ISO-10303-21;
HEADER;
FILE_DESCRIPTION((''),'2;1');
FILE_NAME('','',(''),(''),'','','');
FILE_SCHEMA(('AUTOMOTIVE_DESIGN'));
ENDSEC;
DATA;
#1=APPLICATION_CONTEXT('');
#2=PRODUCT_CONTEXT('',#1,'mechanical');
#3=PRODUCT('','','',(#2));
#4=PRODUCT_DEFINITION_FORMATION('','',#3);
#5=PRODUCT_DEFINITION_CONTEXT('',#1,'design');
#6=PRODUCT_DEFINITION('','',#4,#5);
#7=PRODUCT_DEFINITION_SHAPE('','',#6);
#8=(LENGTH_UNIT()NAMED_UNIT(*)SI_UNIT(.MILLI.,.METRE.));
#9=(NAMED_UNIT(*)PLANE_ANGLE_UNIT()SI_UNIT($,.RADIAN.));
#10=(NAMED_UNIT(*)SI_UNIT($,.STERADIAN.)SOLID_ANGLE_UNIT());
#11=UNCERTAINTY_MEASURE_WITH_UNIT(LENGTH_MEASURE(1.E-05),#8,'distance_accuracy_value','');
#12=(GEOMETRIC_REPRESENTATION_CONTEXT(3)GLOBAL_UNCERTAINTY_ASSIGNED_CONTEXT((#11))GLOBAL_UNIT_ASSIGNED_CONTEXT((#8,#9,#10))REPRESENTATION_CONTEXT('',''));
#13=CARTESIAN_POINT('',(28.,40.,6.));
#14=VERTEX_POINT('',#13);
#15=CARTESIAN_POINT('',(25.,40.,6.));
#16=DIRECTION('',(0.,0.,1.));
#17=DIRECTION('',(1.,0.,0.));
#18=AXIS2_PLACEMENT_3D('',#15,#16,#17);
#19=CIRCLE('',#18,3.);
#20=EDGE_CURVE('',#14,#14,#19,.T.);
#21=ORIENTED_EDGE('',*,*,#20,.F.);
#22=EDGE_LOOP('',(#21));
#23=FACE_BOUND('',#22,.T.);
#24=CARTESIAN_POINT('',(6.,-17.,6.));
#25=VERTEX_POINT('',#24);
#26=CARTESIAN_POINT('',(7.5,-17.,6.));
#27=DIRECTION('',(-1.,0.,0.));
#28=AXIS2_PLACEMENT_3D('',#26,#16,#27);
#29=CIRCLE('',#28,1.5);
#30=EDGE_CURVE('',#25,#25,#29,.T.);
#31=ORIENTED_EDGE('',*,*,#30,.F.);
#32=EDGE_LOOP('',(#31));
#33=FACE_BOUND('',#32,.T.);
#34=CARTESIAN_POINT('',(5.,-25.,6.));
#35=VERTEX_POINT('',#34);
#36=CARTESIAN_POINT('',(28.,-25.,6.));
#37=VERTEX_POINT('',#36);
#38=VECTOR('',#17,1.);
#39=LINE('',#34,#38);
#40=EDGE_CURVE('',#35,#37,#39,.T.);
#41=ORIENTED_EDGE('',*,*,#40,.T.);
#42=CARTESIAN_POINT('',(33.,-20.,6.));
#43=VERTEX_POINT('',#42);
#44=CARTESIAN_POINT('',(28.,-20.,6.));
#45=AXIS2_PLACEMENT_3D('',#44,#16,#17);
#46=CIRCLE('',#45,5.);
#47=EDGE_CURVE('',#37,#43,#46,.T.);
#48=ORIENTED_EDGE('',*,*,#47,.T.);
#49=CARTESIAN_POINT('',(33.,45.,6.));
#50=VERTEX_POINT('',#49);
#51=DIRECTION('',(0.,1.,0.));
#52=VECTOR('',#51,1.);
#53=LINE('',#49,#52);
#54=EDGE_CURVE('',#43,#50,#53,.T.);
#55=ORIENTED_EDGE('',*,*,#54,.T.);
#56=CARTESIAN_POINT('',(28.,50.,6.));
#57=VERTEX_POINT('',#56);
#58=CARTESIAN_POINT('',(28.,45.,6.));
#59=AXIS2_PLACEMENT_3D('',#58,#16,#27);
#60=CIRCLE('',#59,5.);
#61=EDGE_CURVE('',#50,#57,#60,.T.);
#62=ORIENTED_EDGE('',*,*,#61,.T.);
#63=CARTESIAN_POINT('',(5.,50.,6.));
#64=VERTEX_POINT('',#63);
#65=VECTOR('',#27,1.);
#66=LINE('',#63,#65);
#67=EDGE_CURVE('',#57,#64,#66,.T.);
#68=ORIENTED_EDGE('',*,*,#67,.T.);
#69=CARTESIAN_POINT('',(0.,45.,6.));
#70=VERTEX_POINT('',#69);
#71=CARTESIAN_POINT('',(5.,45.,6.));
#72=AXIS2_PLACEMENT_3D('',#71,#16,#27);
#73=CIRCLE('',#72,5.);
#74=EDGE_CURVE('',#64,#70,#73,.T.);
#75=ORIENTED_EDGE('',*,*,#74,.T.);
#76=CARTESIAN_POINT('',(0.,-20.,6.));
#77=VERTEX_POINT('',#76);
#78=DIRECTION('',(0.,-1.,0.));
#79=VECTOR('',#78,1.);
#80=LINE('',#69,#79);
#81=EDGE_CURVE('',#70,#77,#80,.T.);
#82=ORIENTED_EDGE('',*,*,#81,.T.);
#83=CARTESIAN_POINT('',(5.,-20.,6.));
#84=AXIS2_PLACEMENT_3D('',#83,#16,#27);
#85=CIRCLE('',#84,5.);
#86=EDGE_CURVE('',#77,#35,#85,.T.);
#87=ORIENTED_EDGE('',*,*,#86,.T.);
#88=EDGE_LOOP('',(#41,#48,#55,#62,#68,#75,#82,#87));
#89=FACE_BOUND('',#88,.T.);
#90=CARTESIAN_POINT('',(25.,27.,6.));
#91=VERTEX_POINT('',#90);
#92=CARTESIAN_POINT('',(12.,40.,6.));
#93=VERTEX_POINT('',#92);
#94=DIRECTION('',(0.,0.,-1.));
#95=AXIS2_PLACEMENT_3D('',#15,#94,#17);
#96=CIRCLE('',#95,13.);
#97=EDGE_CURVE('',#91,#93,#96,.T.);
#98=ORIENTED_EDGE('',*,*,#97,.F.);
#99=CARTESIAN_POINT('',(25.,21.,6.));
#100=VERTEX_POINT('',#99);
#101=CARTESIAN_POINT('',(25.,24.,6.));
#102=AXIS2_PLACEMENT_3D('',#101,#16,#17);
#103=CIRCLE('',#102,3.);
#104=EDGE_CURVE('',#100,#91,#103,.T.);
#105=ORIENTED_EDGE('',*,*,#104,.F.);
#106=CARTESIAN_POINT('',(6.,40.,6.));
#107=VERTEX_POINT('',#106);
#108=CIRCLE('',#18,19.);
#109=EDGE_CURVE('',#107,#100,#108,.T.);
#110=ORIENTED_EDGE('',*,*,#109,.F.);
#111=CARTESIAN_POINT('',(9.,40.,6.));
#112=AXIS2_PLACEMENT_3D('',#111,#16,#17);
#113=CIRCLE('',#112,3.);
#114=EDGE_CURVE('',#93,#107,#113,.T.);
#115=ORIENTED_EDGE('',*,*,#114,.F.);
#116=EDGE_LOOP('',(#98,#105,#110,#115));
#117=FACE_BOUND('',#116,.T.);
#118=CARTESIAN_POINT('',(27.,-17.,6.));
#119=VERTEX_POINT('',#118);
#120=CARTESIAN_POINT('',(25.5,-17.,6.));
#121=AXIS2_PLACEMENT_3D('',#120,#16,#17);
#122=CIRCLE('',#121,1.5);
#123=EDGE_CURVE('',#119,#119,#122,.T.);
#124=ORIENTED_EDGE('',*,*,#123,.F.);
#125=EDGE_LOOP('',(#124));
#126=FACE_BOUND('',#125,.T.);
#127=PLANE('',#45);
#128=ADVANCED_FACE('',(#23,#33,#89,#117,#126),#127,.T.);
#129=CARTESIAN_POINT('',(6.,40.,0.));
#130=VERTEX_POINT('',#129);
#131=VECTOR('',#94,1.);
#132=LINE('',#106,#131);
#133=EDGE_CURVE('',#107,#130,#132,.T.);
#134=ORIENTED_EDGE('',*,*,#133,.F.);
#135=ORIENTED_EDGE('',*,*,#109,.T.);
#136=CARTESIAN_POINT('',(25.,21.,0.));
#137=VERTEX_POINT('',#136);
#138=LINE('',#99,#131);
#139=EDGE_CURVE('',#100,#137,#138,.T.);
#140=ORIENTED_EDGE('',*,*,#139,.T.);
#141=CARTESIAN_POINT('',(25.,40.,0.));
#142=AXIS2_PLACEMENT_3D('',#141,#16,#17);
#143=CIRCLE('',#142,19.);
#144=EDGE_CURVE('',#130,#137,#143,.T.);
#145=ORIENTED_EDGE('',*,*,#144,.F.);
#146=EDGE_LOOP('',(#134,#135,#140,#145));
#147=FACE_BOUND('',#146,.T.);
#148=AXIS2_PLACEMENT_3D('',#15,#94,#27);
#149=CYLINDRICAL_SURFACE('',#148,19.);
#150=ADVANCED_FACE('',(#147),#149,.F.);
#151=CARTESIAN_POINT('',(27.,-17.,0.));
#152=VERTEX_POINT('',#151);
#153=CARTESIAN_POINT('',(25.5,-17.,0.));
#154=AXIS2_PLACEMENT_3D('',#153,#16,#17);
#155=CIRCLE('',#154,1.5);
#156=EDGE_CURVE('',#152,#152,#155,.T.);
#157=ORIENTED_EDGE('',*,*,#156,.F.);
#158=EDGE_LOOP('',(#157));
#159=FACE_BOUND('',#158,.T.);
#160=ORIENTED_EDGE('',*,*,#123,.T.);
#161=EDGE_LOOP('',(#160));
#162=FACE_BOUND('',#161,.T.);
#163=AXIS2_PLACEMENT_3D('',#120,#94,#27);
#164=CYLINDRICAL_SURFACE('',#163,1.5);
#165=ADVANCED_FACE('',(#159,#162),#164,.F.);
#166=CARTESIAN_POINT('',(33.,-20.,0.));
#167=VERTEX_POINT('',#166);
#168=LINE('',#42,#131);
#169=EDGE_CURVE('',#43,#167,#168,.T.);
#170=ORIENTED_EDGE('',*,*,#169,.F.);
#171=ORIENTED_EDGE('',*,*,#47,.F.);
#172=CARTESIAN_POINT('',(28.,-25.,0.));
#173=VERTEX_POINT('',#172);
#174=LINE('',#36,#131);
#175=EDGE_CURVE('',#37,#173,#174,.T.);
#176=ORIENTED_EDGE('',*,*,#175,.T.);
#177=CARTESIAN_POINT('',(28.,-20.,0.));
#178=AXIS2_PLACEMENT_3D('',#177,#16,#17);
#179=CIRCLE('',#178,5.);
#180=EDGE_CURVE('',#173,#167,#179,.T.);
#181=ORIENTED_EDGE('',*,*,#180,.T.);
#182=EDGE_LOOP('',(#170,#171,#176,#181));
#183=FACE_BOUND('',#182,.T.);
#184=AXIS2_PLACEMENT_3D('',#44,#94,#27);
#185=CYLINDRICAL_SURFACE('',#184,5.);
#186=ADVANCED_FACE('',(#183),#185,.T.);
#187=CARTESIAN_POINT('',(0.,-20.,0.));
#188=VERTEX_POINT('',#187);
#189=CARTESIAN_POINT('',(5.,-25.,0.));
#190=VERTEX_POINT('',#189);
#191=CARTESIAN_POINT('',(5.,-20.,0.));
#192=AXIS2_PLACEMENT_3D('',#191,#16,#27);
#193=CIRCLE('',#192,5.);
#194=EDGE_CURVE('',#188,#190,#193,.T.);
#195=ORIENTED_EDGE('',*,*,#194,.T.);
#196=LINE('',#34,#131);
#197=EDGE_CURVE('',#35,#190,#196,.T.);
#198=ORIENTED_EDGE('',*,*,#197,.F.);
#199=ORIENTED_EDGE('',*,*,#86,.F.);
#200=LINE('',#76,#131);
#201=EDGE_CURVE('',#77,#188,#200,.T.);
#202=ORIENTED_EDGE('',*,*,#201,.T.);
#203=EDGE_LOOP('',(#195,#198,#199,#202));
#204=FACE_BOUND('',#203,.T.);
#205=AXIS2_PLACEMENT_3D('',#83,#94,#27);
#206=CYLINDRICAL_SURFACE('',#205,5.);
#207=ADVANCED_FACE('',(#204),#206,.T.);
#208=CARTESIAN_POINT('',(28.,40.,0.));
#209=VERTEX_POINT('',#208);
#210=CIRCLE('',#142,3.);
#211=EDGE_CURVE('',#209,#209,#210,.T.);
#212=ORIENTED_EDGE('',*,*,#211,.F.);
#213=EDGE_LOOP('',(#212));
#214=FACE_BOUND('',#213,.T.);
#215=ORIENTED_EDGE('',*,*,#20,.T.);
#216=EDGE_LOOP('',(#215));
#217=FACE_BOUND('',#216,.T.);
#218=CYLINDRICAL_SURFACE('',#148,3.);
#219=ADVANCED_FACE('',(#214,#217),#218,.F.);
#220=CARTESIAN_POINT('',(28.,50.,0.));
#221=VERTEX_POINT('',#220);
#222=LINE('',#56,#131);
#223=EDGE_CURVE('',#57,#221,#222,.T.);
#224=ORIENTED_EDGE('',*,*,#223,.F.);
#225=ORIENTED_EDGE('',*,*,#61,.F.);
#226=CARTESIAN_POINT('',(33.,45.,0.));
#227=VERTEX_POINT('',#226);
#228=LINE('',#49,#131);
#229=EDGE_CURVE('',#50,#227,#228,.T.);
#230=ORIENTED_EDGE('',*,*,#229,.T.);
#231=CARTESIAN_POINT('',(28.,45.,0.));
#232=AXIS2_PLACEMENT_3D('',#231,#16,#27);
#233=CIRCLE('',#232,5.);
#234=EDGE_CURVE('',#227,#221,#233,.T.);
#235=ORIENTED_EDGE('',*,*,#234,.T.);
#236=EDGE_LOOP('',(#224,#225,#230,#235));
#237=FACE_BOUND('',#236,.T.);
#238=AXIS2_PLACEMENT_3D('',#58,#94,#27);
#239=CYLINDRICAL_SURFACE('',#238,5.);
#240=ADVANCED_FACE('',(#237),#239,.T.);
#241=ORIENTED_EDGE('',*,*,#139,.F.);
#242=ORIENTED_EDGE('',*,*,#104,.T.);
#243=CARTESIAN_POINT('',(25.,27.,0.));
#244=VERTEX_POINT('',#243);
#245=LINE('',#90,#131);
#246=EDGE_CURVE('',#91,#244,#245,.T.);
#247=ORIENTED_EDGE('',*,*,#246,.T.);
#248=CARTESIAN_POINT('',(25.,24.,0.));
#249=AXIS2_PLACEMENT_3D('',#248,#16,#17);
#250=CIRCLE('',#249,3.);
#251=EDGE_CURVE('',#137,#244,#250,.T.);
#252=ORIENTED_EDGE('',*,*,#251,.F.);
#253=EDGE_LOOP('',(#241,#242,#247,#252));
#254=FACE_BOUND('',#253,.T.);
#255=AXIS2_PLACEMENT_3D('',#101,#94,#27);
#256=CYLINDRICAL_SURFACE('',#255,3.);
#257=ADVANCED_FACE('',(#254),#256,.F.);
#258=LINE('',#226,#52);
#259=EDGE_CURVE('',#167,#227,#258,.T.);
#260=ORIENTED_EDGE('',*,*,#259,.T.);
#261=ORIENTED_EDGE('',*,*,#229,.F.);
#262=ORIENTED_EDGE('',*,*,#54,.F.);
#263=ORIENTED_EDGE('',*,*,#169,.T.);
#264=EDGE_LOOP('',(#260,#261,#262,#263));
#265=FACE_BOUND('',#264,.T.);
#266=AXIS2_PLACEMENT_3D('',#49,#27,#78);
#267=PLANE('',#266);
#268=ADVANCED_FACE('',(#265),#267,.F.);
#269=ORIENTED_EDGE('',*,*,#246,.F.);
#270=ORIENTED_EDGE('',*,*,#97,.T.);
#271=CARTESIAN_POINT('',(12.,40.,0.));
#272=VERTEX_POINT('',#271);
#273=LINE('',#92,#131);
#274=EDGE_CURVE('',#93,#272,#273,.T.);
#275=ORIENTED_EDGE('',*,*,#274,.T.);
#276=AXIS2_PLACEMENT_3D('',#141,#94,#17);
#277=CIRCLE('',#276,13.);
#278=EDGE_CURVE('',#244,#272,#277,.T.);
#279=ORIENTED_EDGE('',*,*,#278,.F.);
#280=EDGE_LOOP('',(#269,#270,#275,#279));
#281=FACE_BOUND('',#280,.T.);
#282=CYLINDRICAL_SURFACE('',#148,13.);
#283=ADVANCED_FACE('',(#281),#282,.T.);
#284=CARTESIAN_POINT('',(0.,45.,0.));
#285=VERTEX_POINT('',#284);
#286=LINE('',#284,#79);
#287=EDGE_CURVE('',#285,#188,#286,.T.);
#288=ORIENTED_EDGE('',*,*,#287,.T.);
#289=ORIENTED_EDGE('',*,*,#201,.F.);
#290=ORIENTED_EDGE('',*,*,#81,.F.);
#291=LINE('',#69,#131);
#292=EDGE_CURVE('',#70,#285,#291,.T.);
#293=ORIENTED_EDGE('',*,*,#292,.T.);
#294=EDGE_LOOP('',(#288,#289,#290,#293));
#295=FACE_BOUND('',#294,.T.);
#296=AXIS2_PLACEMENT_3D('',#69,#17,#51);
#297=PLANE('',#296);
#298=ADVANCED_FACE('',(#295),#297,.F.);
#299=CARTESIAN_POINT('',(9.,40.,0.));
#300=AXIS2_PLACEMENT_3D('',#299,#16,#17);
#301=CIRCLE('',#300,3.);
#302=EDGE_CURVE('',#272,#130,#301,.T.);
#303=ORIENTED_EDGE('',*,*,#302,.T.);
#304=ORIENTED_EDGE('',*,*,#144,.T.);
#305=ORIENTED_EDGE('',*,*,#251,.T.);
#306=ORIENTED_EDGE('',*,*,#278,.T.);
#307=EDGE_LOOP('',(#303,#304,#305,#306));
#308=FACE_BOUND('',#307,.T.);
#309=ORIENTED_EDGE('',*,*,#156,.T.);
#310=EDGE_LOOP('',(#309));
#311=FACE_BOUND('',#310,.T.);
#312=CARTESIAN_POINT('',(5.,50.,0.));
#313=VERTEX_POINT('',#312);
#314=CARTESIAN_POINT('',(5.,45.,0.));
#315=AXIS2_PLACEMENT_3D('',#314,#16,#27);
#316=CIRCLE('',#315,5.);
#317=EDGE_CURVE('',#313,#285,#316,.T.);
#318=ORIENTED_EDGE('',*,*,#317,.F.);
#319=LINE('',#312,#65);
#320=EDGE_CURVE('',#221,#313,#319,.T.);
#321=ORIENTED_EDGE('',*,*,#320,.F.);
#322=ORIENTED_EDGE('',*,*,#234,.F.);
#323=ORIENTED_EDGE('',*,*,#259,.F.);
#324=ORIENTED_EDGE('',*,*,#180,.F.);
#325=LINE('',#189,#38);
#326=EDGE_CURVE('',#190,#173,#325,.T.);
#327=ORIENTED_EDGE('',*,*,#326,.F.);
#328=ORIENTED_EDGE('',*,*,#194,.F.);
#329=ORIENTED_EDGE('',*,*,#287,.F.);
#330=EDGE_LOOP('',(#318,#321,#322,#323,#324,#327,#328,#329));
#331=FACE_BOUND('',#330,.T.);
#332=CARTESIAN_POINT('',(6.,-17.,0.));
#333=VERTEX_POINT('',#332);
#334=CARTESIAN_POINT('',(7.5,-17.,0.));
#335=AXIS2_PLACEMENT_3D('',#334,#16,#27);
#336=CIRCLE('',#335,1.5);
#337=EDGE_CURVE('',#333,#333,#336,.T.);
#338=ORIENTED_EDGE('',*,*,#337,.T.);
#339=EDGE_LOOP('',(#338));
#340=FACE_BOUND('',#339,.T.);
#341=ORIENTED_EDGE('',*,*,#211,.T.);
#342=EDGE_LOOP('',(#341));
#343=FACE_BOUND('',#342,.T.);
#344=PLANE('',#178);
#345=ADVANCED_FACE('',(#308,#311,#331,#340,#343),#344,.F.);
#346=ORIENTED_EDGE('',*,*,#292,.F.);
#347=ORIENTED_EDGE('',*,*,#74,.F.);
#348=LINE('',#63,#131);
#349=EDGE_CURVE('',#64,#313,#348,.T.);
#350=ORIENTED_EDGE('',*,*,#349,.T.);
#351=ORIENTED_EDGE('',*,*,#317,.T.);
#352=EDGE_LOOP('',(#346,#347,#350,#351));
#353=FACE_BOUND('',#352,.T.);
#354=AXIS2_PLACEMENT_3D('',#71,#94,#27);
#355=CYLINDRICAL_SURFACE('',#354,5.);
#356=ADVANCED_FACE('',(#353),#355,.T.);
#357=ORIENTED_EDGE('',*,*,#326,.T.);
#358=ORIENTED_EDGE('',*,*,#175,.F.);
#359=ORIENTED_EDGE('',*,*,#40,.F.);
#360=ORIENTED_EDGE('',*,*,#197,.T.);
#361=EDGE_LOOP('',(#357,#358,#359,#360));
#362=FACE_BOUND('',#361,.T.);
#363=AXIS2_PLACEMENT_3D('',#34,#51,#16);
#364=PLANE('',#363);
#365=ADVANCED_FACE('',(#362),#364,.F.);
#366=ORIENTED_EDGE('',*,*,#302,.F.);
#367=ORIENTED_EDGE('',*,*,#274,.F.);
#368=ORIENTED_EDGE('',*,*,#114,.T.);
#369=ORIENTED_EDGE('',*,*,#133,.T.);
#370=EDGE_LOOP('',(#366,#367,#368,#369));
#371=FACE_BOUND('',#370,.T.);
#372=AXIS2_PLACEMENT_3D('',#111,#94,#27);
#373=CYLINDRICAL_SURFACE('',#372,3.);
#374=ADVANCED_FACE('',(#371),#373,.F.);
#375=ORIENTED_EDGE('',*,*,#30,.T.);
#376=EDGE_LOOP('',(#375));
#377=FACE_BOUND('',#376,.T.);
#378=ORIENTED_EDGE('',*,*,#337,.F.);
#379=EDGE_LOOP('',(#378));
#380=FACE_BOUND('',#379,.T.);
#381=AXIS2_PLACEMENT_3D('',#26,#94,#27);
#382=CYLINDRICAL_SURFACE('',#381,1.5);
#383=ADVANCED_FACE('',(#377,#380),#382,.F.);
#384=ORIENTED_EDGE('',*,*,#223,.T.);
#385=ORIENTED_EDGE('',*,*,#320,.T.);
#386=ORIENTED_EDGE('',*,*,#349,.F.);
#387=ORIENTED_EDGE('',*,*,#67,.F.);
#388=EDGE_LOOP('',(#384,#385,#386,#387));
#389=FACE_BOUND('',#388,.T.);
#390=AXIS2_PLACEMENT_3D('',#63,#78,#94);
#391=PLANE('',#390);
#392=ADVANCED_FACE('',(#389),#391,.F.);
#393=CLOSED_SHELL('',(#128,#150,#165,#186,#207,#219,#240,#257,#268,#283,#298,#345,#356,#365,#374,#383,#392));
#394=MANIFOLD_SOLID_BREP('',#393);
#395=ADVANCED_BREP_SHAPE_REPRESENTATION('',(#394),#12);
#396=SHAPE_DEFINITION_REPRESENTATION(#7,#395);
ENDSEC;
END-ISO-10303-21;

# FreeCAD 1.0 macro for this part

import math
import FreeCAD as App
import Part
import Sketcher

V = App.Vector

doc = App.newDocument("Part")
body = doc.addObject("PartDesign::Body", "Body")

sketch1 = body.newObject("Sketcher::SketchObject", "Sketch")
sketch1.AttachmentSupport = (doc.getObject("XY_Plane"), [""])
sketch1.MapMode = "FlatFace"
sketch1.addGeometry([
    Part.LineSegment(V(28, 50, 0), V(5, 50, 0)),
    Part.ArcOfCircle(Part.Circle(V(5, 45, 0), V(0, 0, 1), 5), math.radians(90), math.radians(180)),
    Part.LineSegment(V(0, 45, 0), V(0, -20, 0)),
    Part.ArcOfCircle(Part.Circle(V(5, -20, 0), V(0, 0, 1), 5), math.radians(180), math.radians(270)),
    Part.LineSegment(V(5, -25, 0), V(28, -25, 0)),
    Part.ArcOfCircle(Part.Circle(V(28, -20, 0), V(0, 0, 1), 5), math.radians(-90), math.radians(0)),
    Part.LineSegment(V(33, -20, 0), V(33, 45, 0)),
    Part.ArcOfCircle(Part.Circle(V(28, 45, 0), V(0, 0, 1), 5), math.radians(0), math.radians(90)),
    Part.Circle(V(25.5, -17, 0), V(0, 0, 1), 1.5),
    Part.Circle(V(7.5, -17, 0), V(0, 0, 1), 1.5),
    Part.Circle(V(25, 40, 0), V(0, 0, 1), 3),
    Part.ArcOfCircle(Part.Circle(V(9, 40, 0), V(0, 0, 1), 3), math.radians(0), math.radians(180)),
    Part.ArcOfCircle(Part.Circle(V(25, 40, 0), V(0, 0, 1), 13), math.radians(-180), math.radians(-90)),
    Part.ArcOfCircle(Part.Circle(V(25, 24, 0), V(0, 0, 1), 3), math.radians(-90), math.radians(90)),
    Part.ArcOfCircle(Part.Circle(V(25, 40, 0), V(0, 0, 1), 19), math.radians(180), math.radians(270)),
], False)
sketch1.addConstraint([
    Sketcher.Constraint("Tangent", 0, 2, 1, 1),
    Sketcher.Constraint("Tangent", 1, 2, 2, 1),
    Sketcher.Constraint("Tangent", 2, 2, 3, 1),
    Sketcher.Constraint("Tangent", 3, 2, 4, 1),
    Sketcher.Constraint("Tangent", 4, 2, 5, 1),
    Sketcher.Constraint("Tangent", 5, 2, 6, 1),
    Sketcher.Constraint("Tangent", 6, 2, 7, 1),
    Sketcher.Constraint("Tangent", 7, 2, 0, 1),
    Sketcher.Constraint("Tangent", 11, 1, 12, 1),
    Sketcher.Constraint("Tangent", 12, 2, 13, 2),
    Sketcher.Constraint("Tangent", 13, 1, 14, 2),
    Sketcher.Constraint("Tangent", 14, 1, 11, 2),
    Sketcher.Constraint("Horizontal", 0),
    Sketcher.Constraint("Vertical", 2),
    Sketcher.Constraint("Horizontal", 4),
    Sketcher.Constraint("Vertical", 6),
    Sketcher.Constraint("Coincident", 12, 3, 10, 3),
    Sketcher.Constraint("Coincident", 14, 3, 10, 3),
    Sketcher.Constraint("Equal", 1, 3),
    Sketcher.Constraint("Equal", 3, 5),
    Sketcher.Constraint("Equal", 5, 7),
    Sketcher.Constraint("Equal", 8, 9),
    Sketcher.Constraint("Equal", 10, 11),
    Sketcher.Constraint("PointOnObject", 1, 2, -2),
    Sketcher.Constraint("Horizontal", 8, 3, 9, 3),
    Sketcher.Constraint("Horizontal", 10, 3, 11, 3),
    Sketcher.Constraint("Vertical", 12, 3, 13, 3),
    Sketcher.Constraint("Diameter", 8, 3.0),
    Sketcher.Constraint("Diameter", 10, 6.0),
    Sketcher.Constraint("Radius", 1, 5.0),
    Sketcher.Constraint("Radius", 12, 13.0),
    Sketcher.Constraint("DistanceX", 0, 2, 0, 1, 23.0),
    Sketcher.Constraint("DistanceY", 2, 2, 2, 1, 65.0),
    Sketcher.Constraint("DistanceY", -1, 1, 1, 3, 45.0),
    Sketcher.Constraint("DistanceY", 8, 3, -1, 1, 17.0),
    Sketcher.Constraint("DistanceX", -1, 1, 10, 3, 25.0),
    Sketcher.Constraint("DistanceY", -1, 1, 10, 3, 40.0),
    Sketcher.Constraint("DistanceX", 9, 3, 8, 3, 18.0),
    Sketcher.Constraint("DistanceX", -1, 1, 8, 3, 25.5),
])
pad1 = body.newObject("PartDesign::Pad", "Pad")
pad1.Profile = sketch1
pad1.Length = 6

doc.recompute()
